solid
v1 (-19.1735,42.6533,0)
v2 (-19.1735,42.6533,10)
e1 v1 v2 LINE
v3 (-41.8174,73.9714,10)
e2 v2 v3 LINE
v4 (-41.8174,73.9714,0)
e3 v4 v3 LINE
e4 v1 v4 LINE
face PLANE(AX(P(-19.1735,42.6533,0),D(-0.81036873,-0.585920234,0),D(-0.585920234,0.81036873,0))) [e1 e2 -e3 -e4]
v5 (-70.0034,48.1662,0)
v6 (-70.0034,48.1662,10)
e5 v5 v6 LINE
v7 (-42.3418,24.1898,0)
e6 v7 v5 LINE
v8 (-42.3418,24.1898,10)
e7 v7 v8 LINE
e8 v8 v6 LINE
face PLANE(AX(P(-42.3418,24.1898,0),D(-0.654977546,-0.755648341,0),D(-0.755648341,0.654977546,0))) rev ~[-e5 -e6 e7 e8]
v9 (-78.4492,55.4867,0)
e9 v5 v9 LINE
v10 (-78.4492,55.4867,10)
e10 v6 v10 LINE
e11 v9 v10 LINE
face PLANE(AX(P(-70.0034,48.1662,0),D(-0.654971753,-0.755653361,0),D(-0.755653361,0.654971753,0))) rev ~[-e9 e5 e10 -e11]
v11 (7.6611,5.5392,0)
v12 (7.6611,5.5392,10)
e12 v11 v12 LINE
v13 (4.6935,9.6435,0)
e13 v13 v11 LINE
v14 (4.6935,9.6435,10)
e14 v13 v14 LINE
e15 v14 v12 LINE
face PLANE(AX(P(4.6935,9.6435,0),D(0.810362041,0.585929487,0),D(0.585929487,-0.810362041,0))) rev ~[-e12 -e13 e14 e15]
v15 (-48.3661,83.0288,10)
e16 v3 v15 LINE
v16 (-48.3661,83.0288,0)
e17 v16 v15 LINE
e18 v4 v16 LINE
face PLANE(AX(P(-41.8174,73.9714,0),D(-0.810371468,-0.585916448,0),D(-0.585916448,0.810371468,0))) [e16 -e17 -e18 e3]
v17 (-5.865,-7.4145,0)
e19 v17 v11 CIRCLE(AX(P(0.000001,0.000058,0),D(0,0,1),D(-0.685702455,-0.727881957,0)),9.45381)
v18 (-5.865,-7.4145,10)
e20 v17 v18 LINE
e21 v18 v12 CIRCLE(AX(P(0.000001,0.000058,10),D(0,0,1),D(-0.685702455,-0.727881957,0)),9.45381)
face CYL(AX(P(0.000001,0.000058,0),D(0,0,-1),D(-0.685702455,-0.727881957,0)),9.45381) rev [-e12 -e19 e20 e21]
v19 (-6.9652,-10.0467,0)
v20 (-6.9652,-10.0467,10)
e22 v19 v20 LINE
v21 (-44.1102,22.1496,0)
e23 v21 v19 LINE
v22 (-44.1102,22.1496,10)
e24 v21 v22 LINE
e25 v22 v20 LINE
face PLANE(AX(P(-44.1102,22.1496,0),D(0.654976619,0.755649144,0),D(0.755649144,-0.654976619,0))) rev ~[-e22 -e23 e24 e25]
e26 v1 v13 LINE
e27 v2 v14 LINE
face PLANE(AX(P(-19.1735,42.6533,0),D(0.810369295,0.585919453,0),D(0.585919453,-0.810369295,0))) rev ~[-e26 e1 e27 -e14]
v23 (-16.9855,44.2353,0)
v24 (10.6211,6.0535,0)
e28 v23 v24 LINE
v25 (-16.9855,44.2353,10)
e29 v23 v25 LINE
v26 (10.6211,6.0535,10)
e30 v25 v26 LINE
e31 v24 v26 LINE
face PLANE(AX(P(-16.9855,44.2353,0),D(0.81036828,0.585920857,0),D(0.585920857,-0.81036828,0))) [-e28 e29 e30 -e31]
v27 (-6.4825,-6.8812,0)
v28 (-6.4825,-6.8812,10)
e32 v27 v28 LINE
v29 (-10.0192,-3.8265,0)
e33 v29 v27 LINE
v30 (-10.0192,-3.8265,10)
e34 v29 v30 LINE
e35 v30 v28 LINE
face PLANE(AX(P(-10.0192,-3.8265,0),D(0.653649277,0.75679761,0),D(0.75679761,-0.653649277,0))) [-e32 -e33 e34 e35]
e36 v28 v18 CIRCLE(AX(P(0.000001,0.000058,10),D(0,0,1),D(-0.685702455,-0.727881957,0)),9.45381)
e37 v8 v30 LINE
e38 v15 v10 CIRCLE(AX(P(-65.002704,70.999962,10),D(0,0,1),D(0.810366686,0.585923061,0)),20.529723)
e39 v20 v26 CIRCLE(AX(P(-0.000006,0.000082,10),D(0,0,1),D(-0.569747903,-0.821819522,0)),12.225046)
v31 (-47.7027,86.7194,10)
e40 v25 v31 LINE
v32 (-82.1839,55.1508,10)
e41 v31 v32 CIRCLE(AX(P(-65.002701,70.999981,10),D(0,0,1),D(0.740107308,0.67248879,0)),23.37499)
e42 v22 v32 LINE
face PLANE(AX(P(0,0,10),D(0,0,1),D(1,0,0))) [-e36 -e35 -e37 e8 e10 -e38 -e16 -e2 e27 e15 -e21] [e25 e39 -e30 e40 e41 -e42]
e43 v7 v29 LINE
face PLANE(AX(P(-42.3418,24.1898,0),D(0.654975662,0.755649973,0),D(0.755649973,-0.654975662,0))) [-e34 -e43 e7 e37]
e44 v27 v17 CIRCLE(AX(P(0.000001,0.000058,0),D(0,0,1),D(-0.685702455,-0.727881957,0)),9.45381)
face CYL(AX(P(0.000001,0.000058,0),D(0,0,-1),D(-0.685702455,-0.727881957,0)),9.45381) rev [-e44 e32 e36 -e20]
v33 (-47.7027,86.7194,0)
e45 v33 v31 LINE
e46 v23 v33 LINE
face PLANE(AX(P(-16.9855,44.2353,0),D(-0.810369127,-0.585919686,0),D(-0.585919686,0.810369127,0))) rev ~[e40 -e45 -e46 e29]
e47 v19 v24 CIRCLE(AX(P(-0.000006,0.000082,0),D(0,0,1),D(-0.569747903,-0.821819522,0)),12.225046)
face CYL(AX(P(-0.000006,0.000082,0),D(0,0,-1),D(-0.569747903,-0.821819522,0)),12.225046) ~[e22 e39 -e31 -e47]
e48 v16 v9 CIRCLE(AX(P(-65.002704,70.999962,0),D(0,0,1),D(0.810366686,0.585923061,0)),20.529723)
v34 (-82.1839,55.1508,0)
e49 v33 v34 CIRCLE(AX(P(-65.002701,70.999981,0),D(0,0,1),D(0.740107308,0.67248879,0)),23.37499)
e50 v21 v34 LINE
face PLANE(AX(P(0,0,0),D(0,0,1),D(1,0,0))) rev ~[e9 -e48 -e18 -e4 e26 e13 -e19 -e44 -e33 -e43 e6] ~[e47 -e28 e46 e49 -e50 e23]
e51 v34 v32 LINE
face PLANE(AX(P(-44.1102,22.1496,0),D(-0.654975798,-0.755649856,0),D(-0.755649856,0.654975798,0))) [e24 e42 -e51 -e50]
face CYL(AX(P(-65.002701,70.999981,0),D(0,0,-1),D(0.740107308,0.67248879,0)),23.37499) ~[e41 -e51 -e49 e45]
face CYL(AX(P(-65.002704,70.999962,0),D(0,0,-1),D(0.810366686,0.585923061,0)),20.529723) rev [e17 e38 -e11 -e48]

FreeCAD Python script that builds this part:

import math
import FreeCAD as App
import Part
import Sketcher

V = App.Vector
Q = App.Units.Quantity

doc = App.newDocument("Part")
body = doc.addObject("PartDesign::Body", "Body")

sketch1 = body.newObject("Sketcher::SketchObject", "Sketch")
sketch1.AttachmentSupport = (doc.getObject("XY_Plane"), [""])
sketch1.MapMode = "FlatFace"
sketch1.addGeometry([
    Part.LineSegment(V(-82.1839, 55.1508, 0), V(-44.1102, 22.1496, 0)),
    Part.LineSegment(V(-44.1102, 22.1496, 0), V(-6.9652, -10.0467, 0)),
    Part.ArcOfCircle(Part.Circle(V(0, 0, 0), V(0, 0, 1), 12.224982), math.radians(-124.732888), math.radians(29.680994)),
    Part.LineSegment(V(10.6211, 6.0535, 0), V(-16.9855, 44.2353, 0)),
    Part.LineSegment(V(-16.9855, 44.2353, 0), V(-47.7027, 86.7194, 0)),
    Part.ArcOfCircle(Part.Circle(V(-65.0027, 71, 0), V(0, 0, 1), 23.374977), math.radians(42.25941), math.radians(222.690714)),
    Part.LineSegment(V(-41.8174, 73.9714, 0), V(-19.1735, 42.6533, 0)),
    Part.LineSegment(V(-19.1735, 42.6533, 0), V(4.6935, 9.6435, 0)),
    Part.LineSegment(V(4.6935, 9.6435, 0), V(7.6611, 5.5392, 0)),
    Part.ArcOfCircle(Part.Circle(V(0, 0, 0), V(0, 0, 1), 9.453767), math.radians(-133.291113), math.radians(35.868033)),
    Part.LineSegment(V(-6.482482, -6.881179, 0), V(-10.0192, -3.8265, 0)),
    Part.LineSegment(V(-10.0192, -3.8265, 0), V(-42.3418, 24.1898, 0)),
    Part.LineSegment(V(-42.3418, 24.1898, 0), V(-70.0034, 48.1662, 0)),
    Part.LineSegment(V(-70.0034, 48.1662, 0), V(-78.4492, 55.4867, 0)),
    Part.ArcOfCircle(Part.Circle(V(-65.0027, 71, 0), V(0, 0, 1), 20.529698), math.radians(35.868146), math.radians(229.082158)),
    Part.LineSegment(V(-48.3661, 83.0288, 0), V(-41.8174, 73.9714, 0)),
], False)
sketch1.addConstraint([
    Sketcher.Constraint("Coincident", 0, 2, 1, 1),
    Sketcher.Constraint("Coincident", 1, 2, 2, 1),
    Sketcher.Constraint("Coincident", 2, 2, 3, 1),
    Sketcher.Constraint("Coincident", 3, 2, 4, 1),
    Sketcher.Constraint("Coincident", 4, 2, 5, 1),
    Sketcher.Constraint("Coincident", 5, 2, 0, 1),
    Sketcher.Constraint("Coincident", 6, 2, 7, 1),
    Sketcher.Constraint("Coincident", 7, 2, 8, 1),
    Sketcher.Constraint("Coincident", 8, 2, 9, 2),
    Sketcher.Constraint("Coincident", 9, 1, 10, 1),
    Sketcher.Constraint("Coincident", 10, 2, 11, 1),
    Sketcher.Constraint("Coincident", 11, 2, 12, 1),
    Sketcher.Constraint("Coincident", 12, 2, 13, 1),
    Sketcher.Constraint("Coincident", 13, 2, 14, 2),
    Sketcher.Constraint("Coincident", 14, 1, 15, 1),
    Sketcher.Constraint("Coincident", 15, 2, 6, 1),
    Sketcher.Constraint("Coincident", 2, 3, -1, 1),
    Sketcher.Constraint("Coincident", 9, 3, -1, 1),
    Sketcher.Constraint("Coincident", 14, 3, 5, 3),
    Sketcher.Constraint("Radius", 2, Q("0.4813 in")),
    Sketcher.Constraint("Radius", 9, Q("0.3722 in")),
    Sketcher.Constraint("Radius", 5, Q("23.375 mm")),
    Sketcher.Constraint("Radius", 14, Q("20.5297 mm")),
    Sketcher.Constraint("DistanceX", 9, 1, 7, 2, Q("0.44 in")),
    Sketcher.Constraint("Distance", 4, Q("2.064 in")),
    Sketcher.Constraint("DistanceX", 11, 2, -1, 1, Q("1.667 in")),
    Sketcher.Constraint("DistanceX", 1, 2, 7, 2, Q("0.459 in")),
    Sketcher.Constraint("DistanceY", 9, 1, 8, 2, Q("0.489 in")),
    Sketcher.Constraint("DistanceY", 10, 2, 11, 2, Q("1.103 in")),
    Sketcher.Constraint("Distance", 1, Q("1.9353 in")),
    Sketcher.Constraint("Distance", 7, Q("1.6037 in")),
    Sketcher.Constraint("Distance", 8, Q("0.1994 in")),
    Sketcher.Constraint("Distance", 12, Q("1.4412 in")),
    Sketcher.Constraint("DistanceY", -1, 1, 5, 2, Q("2.1713 in")),
    Sketcher.Constraint("DistanceY", -1, 1, 12, 2, Q("1.8963 in")),
    Sketcher.Constraint("DistanceX", 0, 2, 1, 2, Q("1.4624 in")),
    Sketcher.Constraint("DistanceY", 2, 2, 0, 2, Q("0.6337 in")),
    Sketcher.Constraint("DistanceX", 5, 3, 2, 2, Q("2.9773 in")),
    Sketcher.Constraint("DistanceX", 0, 2, 3, 2, Q("1.0679 in")),
    Sketcher.Constraint("DistanceX", 5, 3, 4, 2, Q("0.6811 in")),
    Sketcher.Constraint("DistanceY", 3, 2, 4, 2, Q("1.6726 in")),
    Sketcher.Constraint("DistanceY", 7, 2, 6, 2, Q("1.2996 in")),
    Sketcher.Constraint("DistanceY", 1, 2, 10, 2, Q("0.2449 in")),
    Sketcher.Constraint("DistanceY", 11, 2, 3, 2, Q("0.7892 in")),
    Sketcher.Constraint("DistanceX", 13, 2, 12, 2, Q("0.3325 in")),
    Sketcher.Constraint("DistanceY", 14, 1, 4, 2, Q("0.1453 in")),
    Sketcher.Constraint("DistanceY", 15, 2, 14, 1, Q("0.3566 in")),
    Sketcher.Constraint("DistanceX", 4, 2, 15, 2, Q("0.2317 in")),
    Sketcher.Constraint("Distance", 10, Q("0.1839882 in")),
])
pad1 = body.newObject("PartDesign::Pad", "Pad")
pad1.Profile = sketch1
pad1.Length = Q("0.3937008 in")

doc.recompute()
